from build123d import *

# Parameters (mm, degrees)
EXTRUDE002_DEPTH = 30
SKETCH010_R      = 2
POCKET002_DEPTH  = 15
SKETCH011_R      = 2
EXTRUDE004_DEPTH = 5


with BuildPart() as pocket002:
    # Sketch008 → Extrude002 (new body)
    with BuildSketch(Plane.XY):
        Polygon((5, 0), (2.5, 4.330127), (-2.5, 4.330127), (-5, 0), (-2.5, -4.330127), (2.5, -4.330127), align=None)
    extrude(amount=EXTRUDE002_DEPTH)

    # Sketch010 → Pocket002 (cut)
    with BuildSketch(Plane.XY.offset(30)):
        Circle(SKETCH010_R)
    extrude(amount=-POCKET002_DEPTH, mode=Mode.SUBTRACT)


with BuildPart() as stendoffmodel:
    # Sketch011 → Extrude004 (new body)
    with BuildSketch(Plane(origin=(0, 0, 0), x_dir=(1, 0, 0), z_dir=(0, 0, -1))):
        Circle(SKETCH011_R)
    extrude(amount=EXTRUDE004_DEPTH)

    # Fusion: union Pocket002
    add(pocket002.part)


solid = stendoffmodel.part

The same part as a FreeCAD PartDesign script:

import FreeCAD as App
import Part
import Sketcher

V = App.Vector
Q = App.Units.Quantity

doc = App.newDocument("Part")
body = doc.addObject("PartDesign::Body", "Body")

# Sketch on XY plane
sketch1 = doc.addObject("Sketcher::SketchObject", "Sketch")
body.addObject(sketch1)
sketch1.AttachmentSupport = (doc.XY_Plane, [""])
sketch1.MapMode = "FlatFace"
sketch1.addGeometry([
    Part.LineSegment(V(5, 0, 0), V(2.5, 4.330127, 0)),  # 0
    Part.LineSegment(V(2.5, 4.330127, 0), V(-2.5, 4.330127, 0)),  # 1
    Part.LineSegment(V(-2.5, 4.330127, 0), V(-5, 0, 0)),  # 2
    Part.LineSegment(V(-5, 0, 0), V(-2.5, -4.330127, 0)),  # 3
    Part.LineSegment(V(-2.5, -4.330127, 0), V(2.5, -4.330127, 0)),  # 4
    Part.LineSegment(V(2.5, -4.330127, 0), V(5, 0, 0)),  # 5
], False)
sketch1.addConstraint([
    Sketcher.Constraint("Coincident", 0, 2, 1, 1),
    Sketcher.Constraint("Coincident", 1, 2, 2, 1),
    Sketcher.Constraint("Coincident", 2, 2, 3, 1),
    Sketcher.Constraint("Coincident", 3, 2, 4, 1),
    Sketcher.Constraint("Coincident", 4, 2, 5, 1),
    Sketcher.Constraint("Coincident", 5, 2, 0, 1),
    Sketcher.Constraint("Horizontal", 1),
    Sketcher.Constraint("Horizontal", 4),
    Sketcher.Constraint("Symmetric", 0, 2, 3, 2, -1, 1),
    Sketcher.Constraint("Symmetric", 2, 2, 5, 2, -1, 1),
    Sketcher.Constraint("PointOnObject", 2, 2, -1),
    Sketcher.Constraint("Parallel", 2, 5),
    Sketcher.Constraint("Vertical", 1, 2, 3, 2),
    Sketcher.Constraint("DistanceX", 1, 2, 1, 1, Q("5 mm")),
    Sketcher.Constraint("Angle", 0, Q("120 deg")),
    Sketcher.Constraint("Distance", 0, Q("5 mm")),
])
pad1 = doc.addObject("PartDesign::Pad", "Pad")
body.addObject(pad1)
pad1.Profile = sketch1
pad1.Length = 30

# Sketch on XY plane
sketch2 = doc.addObject("Sketcher::SketchObject", "Sketch001")
body.addObject(sketch2)
sketch2.AttachmentSupport = (doc.XY_Plane, [""])
sketch2.MapMode = "FlatFace"
sketch2.AttachmentOffset = App.Placement(V(0, 0, 30), App.Rotation())
sketch2.addGeometry(Part.Circle(V(0, 0, 0), V(0, 0, 1), 2), False)
sketch2.addConstraint([
    Sketcher.Constraint("Coincident", 0, 3, -1, 1),
    Sketcher.Constraint("Diameter", 0, Q("4 mm")),
])
pocket1 = doc.addObject("PartDesign::Pocket", "Pocket")
body.addObject(pocket1)
pocket1.Profile = sketch2
pocket1.Length = 15
body2 = doc.addObject("PartDesign::Body", "Body001")

# Sketch on XY plane
sketch3 = doc.addObject("Sketcher::SketchObject", "Sketch002")
body2.addObject(sketch3)
sketch3.AttachmentSupport = (doc.getObject("XY_Plane001"), [""])
sketch3.MapMode = "FlatFace"
sketch3.addGeometry(Part.Circle(V(0, 0, 0), V(0, 0, 1), 2), False)
sketch3.addConstraint([
    Sketcher.Constraint("Coincident", 0, 3, -1, 1),
    Sketcher.Constraint("Diameter", 0, Q("4 mm")),
])
pad2 = doc.addObject("PartDesign::Pad", "Pad001")
body2.addObject(pad2)
pad2.Profile = sketch3
pad2.Length = 5
pad2.Reversed = True
doc.recompute()

boolean = doc.addObject("PartDesign::Boolean", "Boolean")
body2.addObject(boolean)
boolean.Type = "Fuse"
boolean.addObjects([body])

doc.recompute()
